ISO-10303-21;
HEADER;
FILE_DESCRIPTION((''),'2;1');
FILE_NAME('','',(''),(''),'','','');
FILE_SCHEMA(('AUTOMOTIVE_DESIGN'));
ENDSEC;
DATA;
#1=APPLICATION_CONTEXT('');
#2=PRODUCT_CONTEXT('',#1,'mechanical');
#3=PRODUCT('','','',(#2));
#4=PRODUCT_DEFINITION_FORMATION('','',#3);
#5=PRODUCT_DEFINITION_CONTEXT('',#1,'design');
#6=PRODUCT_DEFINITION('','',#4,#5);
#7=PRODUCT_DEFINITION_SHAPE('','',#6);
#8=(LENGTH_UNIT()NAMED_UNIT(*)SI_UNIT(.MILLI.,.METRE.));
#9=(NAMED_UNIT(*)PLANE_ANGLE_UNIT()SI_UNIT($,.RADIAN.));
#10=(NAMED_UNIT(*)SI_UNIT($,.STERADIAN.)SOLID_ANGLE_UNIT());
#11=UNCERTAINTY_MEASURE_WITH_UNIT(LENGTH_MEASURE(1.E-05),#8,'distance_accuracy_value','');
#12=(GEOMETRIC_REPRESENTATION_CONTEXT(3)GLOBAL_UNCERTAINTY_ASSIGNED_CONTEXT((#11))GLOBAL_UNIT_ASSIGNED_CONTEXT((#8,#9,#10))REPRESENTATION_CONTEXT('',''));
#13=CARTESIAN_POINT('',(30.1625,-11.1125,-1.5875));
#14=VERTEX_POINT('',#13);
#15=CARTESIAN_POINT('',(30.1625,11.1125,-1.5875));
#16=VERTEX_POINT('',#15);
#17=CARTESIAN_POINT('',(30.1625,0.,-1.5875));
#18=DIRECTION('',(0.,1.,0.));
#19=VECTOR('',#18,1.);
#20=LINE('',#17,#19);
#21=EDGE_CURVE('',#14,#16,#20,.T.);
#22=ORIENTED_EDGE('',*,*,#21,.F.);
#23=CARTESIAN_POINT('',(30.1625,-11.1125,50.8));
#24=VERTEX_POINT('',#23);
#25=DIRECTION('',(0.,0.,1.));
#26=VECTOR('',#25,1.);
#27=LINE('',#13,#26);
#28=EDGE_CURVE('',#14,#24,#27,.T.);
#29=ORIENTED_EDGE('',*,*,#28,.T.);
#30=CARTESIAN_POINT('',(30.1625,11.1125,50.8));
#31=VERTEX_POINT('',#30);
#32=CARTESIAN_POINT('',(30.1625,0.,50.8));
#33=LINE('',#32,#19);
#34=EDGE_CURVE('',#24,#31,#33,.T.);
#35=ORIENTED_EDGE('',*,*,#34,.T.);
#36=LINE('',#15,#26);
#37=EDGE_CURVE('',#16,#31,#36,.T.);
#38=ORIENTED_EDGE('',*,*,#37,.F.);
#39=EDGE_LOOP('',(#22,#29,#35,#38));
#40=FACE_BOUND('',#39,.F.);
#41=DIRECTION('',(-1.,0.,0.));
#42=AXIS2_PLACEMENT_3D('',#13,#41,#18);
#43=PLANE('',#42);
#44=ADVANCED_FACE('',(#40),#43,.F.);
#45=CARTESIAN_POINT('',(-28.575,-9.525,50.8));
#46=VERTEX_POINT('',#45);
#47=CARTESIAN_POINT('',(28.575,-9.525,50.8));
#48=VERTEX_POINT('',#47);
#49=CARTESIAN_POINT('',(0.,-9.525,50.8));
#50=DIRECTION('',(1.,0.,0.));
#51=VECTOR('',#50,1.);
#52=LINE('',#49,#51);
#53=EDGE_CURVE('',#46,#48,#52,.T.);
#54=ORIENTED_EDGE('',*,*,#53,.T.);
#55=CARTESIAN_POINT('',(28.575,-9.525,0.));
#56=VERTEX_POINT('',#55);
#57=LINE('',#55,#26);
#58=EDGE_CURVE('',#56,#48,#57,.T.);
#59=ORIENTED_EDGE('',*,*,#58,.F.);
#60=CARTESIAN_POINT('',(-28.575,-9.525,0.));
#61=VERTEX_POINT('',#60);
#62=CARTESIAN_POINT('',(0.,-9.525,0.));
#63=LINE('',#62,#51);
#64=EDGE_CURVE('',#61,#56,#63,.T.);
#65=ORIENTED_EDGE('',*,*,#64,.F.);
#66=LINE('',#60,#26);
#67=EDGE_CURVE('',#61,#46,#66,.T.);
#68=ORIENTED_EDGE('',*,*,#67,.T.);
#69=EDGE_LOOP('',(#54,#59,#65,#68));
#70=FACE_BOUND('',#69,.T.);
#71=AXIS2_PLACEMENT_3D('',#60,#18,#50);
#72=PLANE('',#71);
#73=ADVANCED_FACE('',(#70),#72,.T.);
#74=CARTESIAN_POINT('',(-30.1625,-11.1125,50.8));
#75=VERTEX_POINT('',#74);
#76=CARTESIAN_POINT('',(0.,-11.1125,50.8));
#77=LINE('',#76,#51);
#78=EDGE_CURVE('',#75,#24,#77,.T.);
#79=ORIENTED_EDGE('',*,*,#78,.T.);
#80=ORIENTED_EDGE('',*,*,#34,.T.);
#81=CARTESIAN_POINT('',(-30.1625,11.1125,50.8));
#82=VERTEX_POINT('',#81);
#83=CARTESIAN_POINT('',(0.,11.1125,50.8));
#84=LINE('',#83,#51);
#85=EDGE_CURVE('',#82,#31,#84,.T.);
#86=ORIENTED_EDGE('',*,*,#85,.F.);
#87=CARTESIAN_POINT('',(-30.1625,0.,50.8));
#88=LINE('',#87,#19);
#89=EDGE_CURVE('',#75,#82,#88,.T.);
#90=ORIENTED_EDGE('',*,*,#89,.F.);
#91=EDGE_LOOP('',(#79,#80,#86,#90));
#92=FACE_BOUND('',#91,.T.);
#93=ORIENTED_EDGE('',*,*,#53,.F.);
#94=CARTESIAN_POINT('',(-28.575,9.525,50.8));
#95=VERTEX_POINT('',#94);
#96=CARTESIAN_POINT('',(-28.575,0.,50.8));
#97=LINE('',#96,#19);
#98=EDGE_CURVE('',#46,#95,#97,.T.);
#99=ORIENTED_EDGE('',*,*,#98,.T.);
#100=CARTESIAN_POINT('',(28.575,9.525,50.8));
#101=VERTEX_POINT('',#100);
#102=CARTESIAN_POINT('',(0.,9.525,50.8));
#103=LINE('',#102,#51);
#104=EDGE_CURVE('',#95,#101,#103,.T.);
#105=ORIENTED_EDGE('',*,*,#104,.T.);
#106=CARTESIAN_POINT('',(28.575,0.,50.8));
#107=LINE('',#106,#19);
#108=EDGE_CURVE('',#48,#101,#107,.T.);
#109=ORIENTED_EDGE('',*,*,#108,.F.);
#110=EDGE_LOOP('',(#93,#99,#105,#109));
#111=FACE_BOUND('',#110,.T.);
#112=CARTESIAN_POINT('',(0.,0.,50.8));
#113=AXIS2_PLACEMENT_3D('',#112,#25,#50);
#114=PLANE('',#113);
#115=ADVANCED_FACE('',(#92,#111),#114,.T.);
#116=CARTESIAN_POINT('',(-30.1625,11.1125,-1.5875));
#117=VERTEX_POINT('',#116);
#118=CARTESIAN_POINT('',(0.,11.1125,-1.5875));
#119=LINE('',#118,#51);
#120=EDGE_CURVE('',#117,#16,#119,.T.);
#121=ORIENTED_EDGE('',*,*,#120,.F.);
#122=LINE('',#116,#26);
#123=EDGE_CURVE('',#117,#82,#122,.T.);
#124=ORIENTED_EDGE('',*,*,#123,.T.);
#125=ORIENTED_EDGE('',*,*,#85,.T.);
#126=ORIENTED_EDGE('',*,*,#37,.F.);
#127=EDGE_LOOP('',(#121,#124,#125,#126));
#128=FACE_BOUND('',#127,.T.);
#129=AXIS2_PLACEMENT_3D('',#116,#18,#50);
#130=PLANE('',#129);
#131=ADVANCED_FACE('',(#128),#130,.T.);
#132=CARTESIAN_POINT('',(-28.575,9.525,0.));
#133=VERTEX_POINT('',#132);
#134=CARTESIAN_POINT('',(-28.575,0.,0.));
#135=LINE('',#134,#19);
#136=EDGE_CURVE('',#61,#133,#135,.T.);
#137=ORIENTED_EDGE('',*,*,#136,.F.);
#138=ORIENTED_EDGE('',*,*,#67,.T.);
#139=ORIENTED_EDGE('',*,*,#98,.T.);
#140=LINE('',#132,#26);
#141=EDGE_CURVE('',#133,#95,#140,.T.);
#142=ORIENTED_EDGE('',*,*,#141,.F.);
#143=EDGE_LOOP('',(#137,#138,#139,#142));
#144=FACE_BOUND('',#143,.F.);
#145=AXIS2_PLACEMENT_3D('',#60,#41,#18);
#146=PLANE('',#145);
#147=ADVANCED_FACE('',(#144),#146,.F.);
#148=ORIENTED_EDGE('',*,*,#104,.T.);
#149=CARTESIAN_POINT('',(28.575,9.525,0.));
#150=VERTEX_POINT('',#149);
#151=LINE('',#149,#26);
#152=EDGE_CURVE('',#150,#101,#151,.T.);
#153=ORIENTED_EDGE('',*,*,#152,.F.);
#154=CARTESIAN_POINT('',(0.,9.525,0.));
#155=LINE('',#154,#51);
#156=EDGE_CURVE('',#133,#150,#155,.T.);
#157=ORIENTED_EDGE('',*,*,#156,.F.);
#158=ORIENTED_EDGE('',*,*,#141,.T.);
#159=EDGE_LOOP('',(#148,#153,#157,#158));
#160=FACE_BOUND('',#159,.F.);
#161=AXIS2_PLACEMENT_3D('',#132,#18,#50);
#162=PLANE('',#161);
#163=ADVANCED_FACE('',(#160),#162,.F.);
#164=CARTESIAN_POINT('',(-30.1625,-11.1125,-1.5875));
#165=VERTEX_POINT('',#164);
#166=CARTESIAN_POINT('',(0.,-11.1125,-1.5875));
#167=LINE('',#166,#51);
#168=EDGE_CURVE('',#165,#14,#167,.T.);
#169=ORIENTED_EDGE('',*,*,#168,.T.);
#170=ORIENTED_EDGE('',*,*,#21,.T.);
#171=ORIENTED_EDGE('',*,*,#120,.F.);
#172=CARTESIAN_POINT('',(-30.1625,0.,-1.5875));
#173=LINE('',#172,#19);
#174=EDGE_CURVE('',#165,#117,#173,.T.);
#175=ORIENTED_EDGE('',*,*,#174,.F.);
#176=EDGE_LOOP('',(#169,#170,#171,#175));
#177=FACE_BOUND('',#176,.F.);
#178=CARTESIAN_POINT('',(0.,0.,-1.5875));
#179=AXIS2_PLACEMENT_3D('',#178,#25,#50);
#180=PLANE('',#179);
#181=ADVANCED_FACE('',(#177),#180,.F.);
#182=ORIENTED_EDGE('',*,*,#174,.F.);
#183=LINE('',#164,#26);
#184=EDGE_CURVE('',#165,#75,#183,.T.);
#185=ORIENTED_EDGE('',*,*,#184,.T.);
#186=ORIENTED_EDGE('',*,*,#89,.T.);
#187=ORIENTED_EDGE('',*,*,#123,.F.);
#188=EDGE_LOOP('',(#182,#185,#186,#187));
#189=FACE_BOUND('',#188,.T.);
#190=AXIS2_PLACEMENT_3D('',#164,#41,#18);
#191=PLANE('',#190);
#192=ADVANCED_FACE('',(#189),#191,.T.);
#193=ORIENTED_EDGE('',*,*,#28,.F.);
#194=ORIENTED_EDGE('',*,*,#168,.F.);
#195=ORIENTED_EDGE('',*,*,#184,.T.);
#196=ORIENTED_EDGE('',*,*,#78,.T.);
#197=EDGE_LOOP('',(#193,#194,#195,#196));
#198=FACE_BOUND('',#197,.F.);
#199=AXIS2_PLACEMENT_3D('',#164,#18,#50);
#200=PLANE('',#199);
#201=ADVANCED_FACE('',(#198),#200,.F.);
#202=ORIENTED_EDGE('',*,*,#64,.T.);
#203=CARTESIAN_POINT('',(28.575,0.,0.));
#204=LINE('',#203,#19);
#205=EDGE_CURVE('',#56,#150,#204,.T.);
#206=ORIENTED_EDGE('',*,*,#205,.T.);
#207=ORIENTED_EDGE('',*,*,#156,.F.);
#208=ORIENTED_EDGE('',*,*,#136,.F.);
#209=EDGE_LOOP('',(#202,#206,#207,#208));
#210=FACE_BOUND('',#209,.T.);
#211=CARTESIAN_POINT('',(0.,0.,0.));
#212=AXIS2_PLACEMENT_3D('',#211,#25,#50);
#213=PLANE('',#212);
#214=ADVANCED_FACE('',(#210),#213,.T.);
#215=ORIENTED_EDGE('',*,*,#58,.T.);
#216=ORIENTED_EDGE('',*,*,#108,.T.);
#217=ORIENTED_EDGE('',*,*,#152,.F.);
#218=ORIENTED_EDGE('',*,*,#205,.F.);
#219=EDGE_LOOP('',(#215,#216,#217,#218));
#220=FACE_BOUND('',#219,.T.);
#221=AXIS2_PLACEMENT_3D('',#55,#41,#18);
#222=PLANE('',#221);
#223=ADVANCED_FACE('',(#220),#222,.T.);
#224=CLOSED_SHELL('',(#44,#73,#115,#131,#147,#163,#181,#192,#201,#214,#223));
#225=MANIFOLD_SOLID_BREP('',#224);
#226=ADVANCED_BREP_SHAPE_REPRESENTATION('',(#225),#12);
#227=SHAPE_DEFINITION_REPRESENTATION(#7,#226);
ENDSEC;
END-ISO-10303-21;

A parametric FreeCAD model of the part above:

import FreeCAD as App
import Part
import Sketcher
from FreeCAD import Vector
Q = App.Units.Quantity

doc = App.newDocument("Part")
params = doc.addObject("Spreadsheet::Sheet", "Params")
for row, (alias, value) in enumerate([
    ("sketch1_width", "2.25 in"),
    ("sketch1_height", "0.75 in"),
    ("pad1_length", "2 in"),
    ("sketch2_width", "2.375 in"),
    ("sketch2_height", "0.875 in"),
    ("pad2_length", "2.0625 in"),
], start=1):
    params.set(f"A{row}", alias)
    params.set(f"B{row}", "=" + value)
    params.setAlias(f"B{row}", alias)

body = doc.addObject("PartDesign::Body", "Body")

sketch1 = body.newObject("Sketcher::SketchObject", "Sketch")
sketch1.AttachmentSupport = (doc.getObject("XY_Plane"), [""])
sketch1.MapMode = "FlatFace"
sketch1.addGeometry([
    Part.LineSegment(Vector(-28.575, 9.525, 0), Vector(-28.575, -9.525, 0)),
    Part.LineSegment(Vector(-28.575, -9.525, 0), Vector(28.575, -9.525, 0)),
    Part.LineSegment(Vector(28.575, -9.525, 0), Vector(28.575, 9.525, 0)),
    Part.LineSegment(Vector(28.575, 9.525, 0), Vector(-28.575, 9.525, 0)),
], False)
sketch1.addConstraint([
    Sketcher.Constraint("Coincident", 0, 2, 1, 1),
    Sketcher.Constraint("Coincident", 1, 2, 2, 1),
    Sketcher.Constraint("Coincident", 2, 2, 3, 1),
    Sketcher.Constraint("Coincident", 3, 2, 0, 1),
    Sketcher.Constraint("Vertical", 0),
    Sketcher.Constraint("Horizontal", 1),
    Sketcher.Constraint("Vertical", 2),
    Sketcher.Constraint("Horizontal", 3),
    Sketcher.Constraint("Symmetric", 0, 2, 2, 2, -1, 1),
    Sketcher.Constraint("DistanceX", 1, 1, 1, 2, Q("2.25 in")),
    Sketcher.Constraint("DistanceY", 0, 2, 0, 1, Q("0.75 in")),
])
sketch1.setExpression("Constraints[9]", "Params.sketch1_width")
sketch1.setExpression("Constraints[10]", "Params.sketch1_height")
pad1 = body.newObject("PartDesign::Pad", "Pad")
pad1.Profile = sketch1
pad1.setExpression("Length", "Params.pad1_length")
body2 = doc.addObject("PartDesign::Body", "Body001")

sketch2 = body2.newObject("Sketcher::SketchObject", "Sketch001")
sketch2.AttachmentSupport = (doc.getObject("XY_Plane001"), [""])
sketch2.MapMode = "FlatFace"
sketch2.AttachmentOffset = App.Placement(Vector(0, 0, -0.0625 * 25.4), App.Rotation())
sketch2.addGeometry([
    Part.LineSegment(Vector(-30.1625, 11.1125, 0), Vector(-30.1625, -11.1125, 0)),
    Part.LineSegment(Vector(-30.1625, -11.1125, 0), Vector(30.1625, -11.1125, 0)),
    Part.LineSegment(Vector(30.1625, -11.1125, 0), Vector(30.1625, 11.1125, 0)),
    Part.LineSegment(Vector(30.1625, 11.1125, 0), Vector(-30.1625, 11.1125, 0)),
], False)
sketch2.addConstraint([
    Sketcher.Constraint("Coincident", 0, 2, 1, 1),
    Sketcher.Constraint("Coincident", 1, 2, 2, 1),
    Sketcher.Constraint("Coincident", 2, 2, 3, 1),
    Sketcher.Constraint("Coincident", 3, 2, 0, 1),
    Sketcher.Constraint("Vertical", 0),
    Sketcher.Constraint("Horizontal", 1),
    Sketcher.Constraint("Vertical", 2),
    Sketcher.Constraint("Horizontal", 3),
    Sketcher.Constraint("Symmetric", 0, 2, 2, 2, -1, 1),
    Sketcher.Constraint("DistanceX", 1, 1, 1, 2, Q("2.375 in")),
    Sketcher.Constraint("DistanceY", 0, 2, 0, 1, Q("0.875 in")),
])
sketch2.setExpression("Constraints[9]", "Params.sketch2_width")
sketch2.setExpression("Constraints[10]", "Params.sketch2_height")
pad2 = body2.newObject("PartDesign::Pad", "Pad001")
pad2.Profile = sketch2
pad2.setExpression("Length", "Params.pad2_length")
doc.recompute()

boolean = body2.newObject("PartDesign::Boolean", "Boolean")
boolean.Type = "Cut"
boolean.addObjects([body])

doc.recompute()
